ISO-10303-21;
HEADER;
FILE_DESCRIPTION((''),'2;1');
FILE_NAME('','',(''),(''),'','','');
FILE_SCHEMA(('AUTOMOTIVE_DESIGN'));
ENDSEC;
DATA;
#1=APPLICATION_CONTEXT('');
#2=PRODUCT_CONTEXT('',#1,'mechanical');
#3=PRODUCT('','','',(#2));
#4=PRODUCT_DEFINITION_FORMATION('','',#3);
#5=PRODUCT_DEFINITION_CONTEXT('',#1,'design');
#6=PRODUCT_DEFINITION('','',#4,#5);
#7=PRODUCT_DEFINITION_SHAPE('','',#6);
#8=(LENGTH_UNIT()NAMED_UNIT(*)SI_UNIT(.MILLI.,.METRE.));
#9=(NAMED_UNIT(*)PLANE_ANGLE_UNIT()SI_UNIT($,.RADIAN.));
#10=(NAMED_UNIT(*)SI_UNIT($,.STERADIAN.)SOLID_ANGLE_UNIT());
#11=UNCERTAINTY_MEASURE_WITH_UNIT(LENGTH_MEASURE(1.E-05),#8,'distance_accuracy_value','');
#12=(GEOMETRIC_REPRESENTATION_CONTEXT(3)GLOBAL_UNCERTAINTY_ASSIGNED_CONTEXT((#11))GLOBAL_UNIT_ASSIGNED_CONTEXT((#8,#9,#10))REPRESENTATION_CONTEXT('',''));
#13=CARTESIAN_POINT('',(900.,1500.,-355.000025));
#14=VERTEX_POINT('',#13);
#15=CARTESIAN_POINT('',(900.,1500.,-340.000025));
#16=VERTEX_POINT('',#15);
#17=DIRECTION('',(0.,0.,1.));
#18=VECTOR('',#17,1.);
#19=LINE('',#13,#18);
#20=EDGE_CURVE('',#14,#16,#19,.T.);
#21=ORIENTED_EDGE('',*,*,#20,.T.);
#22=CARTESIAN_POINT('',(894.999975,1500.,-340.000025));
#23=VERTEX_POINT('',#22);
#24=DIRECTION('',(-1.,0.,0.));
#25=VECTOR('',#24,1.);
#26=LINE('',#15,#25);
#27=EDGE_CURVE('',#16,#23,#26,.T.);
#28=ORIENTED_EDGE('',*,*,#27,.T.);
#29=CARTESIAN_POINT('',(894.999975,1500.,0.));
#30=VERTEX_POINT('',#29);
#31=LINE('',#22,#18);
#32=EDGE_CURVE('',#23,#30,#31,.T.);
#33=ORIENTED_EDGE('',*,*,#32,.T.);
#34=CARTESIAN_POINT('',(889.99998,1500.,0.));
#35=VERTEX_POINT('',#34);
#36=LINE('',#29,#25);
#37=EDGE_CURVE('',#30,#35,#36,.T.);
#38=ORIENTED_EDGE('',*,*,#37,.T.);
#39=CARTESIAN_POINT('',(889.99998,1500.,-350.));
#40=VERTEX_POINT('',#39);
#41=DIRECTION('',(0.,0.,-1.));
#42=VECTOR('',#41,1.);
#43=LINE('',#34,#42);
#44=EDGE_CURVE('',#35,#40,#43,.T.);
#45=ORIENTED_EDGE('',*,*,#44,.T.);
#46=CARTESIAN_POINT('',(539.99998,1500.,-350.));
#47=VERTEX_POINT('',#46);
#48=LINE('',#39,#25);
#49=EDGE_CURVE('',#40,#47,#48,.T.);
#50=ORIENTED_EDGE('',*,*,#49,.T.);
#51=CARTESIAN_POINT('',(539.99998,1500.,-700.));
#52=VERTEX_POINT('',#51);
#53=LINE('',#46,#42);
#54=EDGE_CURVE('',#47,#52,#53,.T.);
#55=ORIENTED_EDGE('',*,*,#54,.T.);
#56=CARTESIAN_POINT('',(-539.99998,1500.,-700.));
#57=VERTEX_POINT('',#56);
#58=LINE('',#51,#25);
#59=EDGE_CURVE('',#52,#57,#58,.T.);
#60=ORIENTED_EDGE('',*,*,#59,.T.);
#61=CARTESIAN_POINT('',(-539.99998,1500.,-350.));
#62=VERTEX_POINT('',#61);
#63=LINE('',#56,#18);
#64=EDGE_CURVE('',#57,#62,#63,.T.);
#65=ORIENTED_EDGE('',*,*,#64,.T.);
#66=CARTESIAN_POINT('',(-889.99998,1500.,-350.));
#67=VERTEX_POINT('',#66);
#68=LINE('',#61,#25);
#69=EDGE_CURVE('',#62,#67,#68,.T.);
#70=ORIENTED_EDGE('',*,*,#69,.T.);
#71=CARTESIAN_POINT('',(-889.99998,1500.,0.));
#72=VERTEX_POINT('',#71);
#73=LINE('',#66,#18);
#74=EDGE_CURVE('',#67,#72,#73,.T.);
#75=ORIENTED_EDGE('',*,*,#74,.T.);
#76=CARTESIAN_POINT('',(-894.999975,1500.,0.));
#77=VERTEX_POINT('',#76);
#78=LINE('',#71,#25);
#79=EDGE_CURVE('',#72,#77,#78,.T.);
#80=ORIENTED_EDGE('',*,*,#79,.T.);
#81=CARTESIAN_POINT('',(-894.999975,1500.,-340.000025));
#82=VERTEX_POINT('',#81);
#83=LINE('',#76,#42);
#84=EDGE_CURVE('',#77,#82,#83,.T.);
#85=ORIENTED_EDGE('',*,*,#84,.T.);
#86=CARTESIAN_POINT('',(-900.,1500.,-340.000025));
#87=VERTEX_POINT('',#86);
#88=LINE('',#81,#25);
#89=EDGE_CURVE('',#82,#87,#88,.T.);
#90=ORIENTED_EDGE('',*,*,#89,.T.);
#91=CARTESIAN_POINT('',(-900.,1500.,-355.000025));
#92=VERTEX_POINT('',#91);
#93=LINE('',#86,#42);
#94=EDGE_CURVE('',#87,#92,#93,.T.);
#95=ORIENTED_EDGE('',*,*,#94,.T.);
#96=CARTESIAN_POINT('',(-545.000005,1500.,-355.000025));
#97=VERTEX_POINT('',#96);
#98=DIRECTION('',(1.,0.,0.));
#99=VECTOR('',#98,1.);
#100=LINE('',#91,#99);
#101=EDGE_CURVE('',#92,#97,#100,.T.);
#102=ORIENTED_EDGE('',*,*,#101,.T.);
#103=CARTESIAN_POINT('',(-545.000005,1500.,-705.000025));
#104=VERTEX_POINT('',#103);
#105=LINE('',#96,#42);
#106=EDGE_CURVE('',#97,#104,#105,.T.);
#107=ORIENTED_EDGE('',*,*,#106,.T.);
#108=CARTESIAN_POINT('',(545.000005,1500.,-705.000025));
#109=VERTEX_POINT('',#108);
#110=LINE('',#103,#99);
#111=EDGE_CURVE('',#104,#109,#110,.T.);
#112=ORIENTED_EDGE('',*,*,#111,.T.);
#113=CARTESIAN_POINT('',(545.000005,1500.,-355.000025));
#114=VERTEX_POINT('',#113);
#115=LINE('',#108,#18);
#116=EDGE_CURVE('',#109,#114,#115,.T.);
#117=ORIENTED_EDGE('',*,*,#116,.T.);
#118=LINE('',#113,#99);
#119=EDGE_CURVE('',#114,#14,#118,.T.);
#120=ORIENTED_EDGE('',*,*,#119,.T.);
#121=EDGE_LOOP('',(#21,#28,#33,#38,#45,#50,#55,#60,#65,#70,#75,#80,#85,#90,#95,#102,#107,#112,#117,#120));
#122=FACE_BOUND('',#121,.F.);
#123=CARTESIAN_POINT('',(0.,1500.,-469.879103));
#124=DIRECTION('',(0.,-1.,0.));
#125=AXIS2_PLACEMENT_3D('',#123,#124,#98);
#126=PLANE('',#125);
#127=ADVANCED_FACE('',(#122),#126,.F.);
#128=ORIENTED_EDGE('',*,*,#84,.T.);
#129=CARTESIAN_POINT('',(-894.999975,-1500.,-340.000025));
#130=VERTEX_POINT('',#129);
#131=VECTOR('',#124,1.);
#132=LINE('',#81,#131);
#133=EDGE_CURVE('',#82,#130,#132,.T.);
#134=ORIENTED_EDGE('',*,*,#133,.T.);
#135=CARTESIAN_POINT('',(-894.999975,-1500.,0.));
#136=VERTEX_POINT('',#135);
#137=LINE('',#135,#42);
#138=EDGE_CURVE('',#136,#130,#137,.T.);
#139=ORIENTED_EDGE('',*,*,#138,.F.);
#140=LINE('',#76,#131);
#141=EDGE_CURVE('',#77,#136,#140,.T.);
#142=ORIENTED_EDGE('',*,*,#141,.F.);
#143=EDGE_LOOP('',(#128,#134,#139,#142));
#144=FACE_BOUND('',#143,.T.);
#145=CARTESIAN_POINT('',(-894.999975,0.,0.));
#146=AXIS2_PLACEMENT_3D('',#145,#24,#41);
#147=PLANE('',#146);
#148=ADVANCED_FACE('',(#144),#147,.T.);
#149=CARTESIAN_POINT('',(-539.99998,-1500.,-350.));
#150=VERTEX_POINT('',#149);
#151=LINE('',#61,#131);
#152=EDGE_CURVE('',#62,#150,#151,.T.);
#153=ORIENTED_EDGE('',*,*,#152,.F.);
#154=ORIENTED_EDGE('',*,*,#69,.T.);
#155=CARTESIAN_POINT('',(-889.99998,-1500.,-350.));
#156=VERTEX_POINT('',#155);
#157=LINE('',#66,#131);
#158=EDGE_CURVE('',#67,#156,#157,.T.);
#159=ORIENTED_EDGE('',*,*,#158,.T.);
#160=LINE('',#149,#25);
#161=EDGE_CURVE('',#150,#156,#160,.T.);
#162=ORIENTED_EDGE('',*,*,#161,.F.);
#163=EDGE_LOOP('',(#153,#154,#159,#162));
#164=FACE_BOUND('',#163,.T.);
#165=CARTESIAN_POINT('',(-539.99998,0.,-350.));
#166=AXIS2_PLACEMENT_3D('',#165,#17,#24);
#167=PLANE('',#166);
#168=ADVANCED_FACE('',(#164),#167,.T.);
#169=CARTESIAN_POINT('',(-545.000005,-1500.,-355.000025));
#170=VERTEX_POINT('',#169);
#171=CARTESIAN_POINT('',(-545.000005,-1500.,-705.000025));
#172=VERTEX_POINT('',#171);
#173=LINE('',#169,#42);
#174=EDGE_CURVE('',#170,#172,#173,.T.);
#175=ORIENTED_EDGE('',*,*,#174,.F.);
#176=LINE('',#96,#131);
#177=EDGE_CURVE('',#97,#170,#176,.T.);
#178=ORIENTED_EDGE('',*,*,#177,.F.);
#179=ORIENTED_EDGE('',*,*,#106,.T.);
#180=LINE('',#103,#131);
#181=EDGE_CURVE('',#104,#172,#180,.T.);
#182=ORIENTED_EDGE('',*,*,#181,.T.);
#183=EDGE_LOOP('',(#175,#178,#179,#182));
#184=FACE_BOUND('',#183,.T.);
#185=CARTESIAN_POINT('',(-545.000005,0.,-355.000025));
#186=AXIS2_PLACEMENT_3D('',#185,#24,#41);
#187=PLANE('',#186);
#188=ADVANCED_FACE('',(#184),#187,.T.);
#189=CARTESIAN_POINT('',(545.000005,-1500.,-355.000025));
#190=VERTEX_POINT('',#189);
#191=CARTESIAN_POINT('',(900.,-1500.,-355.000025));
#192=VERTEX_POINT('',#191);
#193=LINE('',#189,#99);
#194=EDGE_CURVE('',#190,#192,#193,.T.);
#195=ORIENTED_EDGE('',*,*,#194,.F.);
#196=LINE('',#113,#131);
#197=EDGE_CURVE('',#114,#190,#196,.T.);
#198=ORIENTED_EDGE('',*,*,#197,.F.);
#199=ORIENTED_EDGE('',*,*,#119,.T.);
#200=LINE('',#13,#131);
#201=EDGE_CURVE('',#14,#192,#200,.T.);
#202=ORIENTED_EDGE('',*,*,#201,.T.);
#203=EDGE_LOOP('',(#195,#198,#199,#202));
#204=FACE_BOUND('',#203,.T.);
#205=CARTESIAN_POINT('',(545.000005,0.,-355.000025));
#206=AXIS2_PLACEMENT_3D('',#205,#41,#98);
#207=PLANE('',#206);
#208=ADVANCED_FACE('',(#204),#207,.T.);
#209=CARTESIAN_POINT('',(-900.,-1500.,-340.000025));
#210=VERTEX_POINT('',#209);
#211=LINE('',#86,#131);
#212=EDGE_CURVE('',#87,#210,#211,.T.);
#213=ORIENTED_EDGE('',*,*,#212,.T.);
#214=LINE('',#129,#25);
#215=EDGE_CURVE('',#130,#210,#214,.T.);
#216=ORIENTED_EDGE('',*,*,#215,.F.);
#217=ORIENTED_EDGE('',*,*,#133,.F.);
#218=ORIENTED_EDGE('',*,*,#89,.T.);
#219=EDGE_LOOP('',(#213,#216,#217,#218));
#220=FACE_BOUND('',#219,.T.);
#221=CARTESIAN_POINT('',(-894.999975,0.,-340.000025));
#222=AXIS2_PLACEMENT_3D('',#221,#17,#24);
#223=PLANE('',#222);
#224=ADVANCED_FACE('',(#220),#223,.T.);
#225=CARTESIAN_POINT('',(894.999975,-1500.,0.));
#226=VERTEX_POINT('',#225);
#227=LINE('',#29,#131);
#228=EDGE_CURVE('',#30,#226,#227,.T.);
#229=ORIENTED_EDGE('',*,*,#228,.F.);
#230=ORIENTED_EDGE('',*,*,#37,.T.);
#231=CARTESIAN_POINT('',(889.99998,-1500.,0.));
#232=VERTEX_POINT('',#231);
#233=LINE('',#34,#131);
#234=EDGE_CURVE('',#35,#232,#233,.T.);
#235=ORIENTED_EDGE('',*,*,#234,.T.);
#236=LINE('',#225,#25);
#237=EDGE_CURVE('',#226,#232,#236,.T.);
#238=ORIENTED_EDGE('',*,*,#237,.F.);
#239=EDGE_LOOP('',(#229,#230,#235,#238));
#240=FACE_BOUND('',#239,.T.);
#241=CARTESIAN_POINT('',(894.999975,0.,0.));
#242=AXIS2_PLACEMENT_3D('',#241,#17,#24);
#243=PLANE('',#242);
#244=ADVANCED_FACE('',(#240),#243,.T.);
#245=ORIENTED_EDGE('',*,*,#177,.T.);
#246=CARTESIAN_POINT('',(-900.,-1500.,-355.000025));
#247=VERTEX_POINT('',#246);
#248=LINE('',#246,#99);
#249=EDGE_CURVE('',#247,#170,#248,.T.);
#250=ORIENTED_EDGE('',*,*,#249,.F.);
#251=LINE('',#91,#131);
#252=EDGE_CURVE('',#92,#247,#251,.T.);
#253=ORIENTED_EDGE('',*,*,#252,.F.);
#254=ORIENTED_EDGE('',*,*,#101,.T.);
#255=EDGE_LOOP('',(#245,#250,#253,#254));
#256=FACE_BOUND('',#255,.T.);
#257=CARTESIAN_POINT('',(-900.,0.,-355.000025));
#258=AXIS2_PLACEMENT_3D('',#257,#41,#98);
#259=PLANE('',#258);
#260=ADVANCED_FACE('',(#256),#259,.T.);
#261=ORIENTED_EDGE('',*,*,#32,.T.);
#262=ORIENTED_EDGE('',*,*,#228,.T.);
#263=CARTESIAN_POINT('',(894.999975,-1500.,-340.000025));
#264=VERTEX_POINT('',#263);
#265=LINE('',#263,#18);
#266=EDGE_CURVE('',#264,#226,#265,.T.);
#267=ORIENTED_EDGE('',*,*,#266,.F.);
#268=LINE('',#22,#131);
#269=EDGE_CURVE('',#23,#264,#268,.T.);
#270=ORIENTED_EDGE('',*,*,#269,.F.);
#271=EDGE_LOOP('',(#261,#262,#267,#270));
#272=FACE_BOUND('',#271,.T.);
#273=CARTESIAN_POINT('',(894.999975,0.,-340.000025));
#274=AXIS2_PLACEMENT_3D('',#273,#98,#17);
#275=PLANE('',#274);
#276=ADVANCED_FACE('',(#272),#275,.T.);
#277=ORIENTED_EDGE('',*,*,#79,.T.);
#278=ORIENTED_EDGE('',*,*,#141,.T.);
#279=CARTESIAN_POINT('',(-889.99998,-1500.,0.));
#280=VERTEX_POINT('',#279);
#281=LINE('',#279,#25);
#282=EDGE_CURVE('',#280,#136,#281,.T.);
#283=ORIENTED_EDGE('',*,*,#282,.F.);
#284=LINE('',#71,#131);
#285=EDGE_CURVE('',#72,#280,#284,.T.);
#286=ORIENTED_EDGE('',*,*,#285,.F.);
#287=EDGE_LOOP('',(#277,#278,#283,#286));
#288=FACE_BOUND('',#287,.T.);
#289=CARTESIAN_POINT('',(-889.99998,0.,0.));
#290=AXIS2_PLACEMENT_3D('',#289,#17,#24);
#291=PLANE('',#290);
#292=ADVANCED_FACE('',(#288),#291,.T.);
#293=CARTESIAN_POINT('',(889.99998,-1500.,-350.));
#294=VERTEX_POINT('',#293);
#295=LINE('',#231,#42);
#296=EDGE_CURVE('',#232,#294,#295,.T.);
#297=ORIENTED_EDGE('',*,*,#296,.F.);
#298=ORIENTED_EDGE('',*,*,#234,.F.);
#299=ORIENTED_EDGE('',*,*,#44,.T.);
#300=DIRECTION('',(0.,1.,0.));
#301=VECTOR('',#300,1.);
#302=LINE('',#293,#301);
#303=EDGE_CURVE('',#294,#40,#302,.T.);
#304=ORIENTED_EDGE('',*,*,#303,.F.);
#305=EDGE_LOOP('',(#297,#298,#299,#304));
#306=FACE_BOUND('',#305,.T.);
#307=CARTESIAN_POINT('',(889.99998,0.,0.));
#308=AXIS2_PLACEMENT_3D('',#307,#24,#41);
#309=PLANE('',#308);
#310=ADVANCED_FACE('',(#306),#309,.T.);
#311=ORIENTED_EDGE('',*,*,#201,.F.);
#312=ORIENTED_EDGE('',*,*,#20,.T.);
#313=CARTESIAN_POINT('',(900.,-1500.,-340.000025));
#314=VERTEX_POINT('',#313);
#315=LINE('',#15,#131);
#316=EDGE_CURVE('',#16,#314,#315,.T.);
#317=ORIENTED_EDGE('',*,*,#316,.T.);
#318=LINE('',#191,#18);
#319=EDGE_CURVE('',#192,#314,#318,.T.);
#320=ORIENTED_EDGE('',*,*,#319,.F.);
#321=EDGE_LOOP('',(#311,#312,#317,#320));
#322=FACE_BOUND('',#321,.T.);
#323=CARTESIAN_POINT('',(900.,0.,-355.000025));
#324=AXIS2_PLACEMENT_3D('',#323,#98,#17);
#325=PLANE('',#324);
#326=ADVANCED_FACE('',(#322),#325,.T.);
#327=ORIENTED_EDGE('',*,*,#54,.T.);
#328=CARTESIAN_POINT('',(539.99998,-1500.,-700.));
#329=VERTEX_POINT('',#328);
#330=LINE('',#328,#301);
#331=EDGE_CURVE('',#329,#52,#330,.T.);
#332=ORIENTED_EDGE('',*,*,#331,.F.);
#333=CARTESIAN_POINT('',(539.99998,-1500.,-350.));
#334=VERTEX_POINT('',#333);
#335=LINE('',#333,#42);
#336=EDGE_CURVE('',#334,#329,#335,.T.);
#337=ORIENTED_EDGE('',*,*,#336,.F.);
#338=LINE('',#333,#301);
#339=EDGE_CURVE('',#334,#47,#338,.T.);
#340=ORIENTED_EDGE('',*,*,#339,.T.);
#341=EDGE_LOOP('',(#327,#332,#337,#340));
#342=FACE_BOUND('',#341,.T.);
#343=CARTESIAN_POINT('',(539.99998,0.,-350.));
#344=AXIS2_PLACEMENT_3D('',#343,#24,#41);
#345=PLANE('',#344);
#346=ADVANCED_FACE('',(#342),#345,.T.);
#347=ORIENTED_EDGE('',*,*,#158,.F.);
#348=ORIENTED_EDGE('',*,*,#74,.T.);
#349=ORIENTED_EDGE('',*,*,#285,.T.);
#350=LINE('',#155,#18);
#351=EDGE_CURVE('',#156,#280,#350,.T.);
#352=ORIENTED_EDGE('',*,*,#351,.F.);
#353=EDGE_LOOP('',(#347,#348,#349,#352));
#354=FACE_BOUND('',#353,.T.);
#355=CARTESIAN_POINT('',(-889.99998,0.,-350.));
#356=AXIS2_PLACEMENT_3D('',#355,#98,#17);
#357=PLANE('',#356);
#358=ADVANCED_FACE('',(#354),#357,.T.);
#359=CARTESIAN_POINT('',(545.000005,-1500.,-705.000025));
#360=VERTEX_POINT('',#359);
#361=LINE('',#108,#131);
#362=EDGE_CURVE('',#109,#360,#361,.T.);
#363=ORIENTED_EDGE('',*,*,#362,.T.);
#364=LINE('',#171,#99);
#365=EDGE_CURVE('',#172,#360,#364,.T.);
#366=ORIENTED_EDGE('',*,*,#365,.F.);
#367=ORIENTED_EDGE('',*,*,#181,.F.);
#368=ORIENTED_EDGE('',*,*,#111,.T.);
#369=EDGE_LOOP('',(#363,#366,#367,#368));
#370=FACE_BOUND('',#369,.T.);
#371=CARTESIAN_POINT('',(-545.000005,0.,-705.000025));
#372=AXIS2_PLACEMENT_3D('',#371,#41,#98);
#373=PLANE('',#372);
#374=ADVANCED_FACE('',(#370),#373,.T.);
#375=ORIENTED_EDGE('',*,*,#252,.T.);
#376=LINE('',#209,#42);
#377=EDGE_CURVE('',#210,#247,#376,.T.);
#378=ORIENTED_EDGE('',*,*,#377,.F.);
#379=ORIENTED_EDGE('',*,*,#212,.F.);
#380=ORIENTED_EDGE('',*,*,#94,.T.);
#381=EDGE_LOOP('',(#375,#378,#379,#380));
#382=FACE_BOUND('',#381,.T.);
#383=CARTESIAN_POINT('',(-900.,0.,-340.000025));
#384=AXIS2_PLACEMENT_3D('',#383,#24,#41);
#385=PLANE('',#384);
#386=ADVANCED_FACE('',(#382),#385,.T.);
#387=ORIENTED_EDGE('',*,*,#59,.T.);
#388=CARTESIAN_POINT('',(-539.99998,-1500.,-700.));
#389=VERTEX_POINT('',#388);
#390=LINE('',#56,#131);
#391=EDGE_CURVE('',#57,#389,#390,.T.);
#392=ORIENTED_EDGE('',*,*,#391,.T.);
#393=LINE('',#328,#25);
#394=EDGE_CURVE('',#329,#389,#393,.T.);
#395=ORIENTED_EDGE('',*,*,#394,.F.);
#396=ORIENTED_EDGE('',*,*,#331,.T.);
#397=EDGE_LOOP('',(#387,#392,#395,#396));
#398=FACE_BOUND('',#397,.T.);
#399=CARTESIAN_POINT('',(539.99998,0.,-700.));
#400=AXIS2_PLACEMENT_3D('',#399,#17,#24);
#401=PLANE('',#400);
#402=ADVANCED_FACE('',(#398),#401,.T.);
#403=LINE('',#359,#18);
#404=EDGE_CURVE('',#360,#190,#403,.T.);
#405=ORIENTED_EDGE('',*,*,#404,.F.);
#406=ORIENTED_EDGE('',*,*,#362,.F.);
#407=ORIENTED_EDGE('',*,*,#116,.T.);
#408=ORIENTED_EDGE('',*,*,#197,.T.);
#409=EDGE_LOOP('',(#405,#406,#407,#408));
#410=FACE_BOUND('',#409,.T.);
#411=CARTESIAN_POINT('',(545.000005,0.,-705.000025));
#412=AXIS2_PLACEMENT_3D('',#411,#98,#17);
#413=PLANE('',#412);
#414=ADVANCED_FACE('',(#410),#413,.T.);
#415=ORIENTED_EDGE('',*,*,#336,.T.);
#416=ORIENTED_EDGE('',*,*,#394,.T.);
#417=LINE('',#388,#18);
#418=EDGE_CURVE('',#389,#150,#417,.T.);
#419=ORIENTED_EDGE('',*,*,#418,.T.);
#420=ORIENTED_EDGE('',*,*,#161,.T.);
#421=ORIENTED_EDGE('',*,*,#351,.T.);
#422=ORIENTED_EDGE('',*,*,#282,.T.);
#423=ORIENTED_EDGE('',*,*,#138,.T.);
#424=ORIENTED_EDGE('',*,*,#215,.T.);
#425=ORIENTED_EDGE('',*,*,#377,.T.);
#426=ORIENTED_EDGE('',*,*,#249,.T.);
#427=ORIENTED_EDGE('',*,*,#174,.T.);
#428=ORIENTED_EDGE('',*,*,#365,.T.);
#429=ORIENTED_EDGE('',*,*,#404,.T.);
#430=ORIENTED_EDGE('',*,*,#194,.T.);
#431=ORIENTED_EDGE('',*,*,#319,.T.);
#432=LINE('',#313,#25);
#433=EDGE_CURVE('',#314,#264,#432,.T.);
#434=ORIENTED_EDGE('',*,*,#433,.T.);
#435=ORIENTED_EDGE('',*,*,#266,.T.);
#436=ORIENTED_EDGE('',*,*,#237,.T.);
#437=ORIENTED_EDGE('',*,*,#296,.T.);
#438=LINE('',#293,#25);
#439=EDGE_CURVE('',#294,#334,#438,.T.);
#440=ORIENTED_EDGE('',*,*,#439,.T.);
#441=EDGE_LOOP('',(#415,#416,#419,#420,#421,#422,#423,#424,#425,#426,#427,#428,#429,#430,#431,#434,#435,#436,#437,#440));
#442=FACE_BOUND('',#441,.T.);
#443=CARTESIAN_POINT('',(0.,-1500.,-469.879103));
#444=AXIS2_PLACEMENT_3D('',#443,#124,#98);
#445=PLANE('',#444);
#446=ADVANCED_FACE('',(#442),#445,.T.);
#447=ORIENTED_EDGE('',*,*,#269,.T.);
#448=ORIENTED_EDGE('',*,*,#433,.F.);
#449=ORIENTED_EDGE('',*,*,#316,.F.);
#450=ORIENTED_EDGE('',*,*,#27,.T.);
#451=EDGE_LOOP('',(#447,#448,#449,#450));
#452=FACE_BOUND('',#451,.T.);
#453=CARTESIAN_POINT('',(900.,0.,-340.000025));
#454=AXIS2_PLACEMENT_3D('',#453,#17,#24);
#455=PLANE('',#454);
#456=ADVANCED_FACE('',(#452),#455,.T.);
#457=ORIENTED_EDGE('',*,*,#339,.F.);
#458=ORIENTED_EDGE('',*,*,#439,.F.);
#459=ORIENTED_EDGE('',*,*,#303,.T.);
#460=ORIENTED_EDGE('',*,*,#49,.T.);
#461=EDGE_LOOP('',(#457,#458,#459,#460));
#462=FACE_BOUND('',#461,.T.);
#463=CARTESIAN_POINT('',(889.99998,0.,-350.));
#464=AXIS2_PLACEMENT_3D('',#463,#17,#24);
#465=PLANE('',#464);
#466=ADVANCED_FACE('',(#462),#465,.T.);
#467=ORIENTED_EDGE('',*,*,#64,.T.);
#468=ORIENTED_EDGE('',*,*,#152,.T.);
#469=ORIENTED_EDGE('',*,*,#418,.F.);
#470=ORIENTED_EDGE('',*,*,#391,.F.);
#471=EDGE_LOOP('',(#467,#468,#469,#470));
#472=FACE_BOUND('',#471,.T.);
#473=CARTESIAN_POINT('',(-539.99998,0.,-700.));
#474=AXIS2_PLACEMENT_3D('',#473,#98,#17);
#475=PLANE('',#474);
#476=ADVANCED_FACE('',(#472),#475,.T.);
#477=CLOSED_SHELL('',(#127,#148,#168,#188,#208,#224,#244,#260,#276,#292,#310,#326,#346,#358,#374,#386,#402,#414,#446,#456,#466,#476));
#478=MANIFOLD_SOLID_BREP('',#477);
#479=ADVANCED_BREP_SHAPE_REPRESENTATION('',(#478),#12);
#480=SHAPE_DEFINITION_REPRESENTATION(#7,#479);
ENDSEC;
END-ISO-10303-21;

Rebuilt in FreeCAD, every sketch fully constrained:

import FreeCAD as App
import Part
import Sketcher
Q = App.Units.Quantity

doc = App.newDocument("Part")
body = doc.addObject("PartDesign::Body", "Body")

sketch1 = body.newObject("Sketcher::SketchObject", "Sketch")
sketch1.AttachmentSupport = (doc.getObject("XZ_Plane"), [""])
sketch1.MapMode = "FlatFace"
sketch1.addGeometry([
    Part.LineSegment(App.Vector(540, -700, 0), App.Vector(-540, -700, 0)),
    Part.LineSegment(App.Vector(-540, -700, 0), App.Vector(-540, -350, 0)),
    Part.LineSegment(App.Vector(-540, -350, 0), App.Vector(-890, -350, 0)),
    Part.LineSegment(App.Vector(-890, -350, 0), App.Vector(-890, 0, 0)),
    Part.LineSegment(App.Vector(-890, 0, 0), App.Vector(-895, 0, 0)),
    Part.LineSegment(App.Vector(-895, 0, 0), App.Vector(-895, -340, 0)),
    Part.LineSegment(App.Vector(-895, -340, 0), App.Vector(-900, -340, 0)),
    Part.LineSegment(App.Vector(-900, -340, 0), App.Vector(-900, -355, 0)),
    Part.LineSegment(App.Vector(-900, -355, 0), App.Vector(-545, -355, 0)),
    Part.LineSegment(App.Vector(-545, -355, 0), App.Vector(-545, -705, 0)),
    Part.LineSegment(App.Vector(-545, -705, 0), App.Vector(545, -705, 0)),
    Part.LineSegment(App.Vector(545, -705, 0), App.Vector(545, -355, 0)),
    Part.LineSegment(App.Vector(545, -355, 0), App.Vector(900, -355, 0)),
    Part.LineSegment(App.Vector(900, -355, 0), App.Vector(900, -340, 0)),
    Part.LineSegment(App.Vector(900, -340, 0), App.Vector(895, -340, 0)),
    Part.LineSegment(App.Vector(895, -340, 0), App.Vector(895, 0, 0)),
    Part.LineSegment(App.Vector(895, 0, 0), App.Vector(890, 0, 0)),
    Part.LineSegment(App.Vector(890, 0, 0), App.Vector(890, -350, 0)),
    Part.LineSegment(App.Vector(890, -350, 0), App.Vector(540, -350, 0)),
    Part.LineSegment(App.Vector(540, -350, 0), App.Vector(540, -700, 0)),
], False)
sketch1.addConstraint([
    Sketcher.Constraint("Coincident", 0, 2, 1, 1),
    Sketcher.Constraint("Coincident", 1, 2, 2, 1),
    Sketcher.Constraint("Coincident", 2, 2, 3, 1),
    Sketcher.Constraint("Coincident", 3, 2, 4, 1),
    Sketcher.Constraint("Coincident", 4, 2, 5, 1),
    Sketcher.Constraint("Coincident", 5, 2, 6, 1),
    Sketcher.Constraint("Coincident", 6, 2, 7, 1),
    Sketcher.Constraint("Coincident", 7, 2, 8, 1),
    Sketcher.Constraint("Coincident", 8, 2, 9, 1),
    Sketcher.Constraint("Coincident", 9, 2, 10, 1),
    Sketcher.Constraint("Coincident", 10, 2, 11, 1),
    Sketcher.Constraint("Coincident", 11, 2, 12, 1),
    Sketcher.Constraint("Coincident", 12, 2, 13, 1),
    Sketcher.Constraint("Coincident", 13, 2, 14, 1),
    Sketcher.Constraint("Coincident", 14, 2, 15, 1),
    Sketcher.Constraint("Coincident", 15, 2, 16, 1),
    Sketcher.Constraint("Coincident", 16, 2, 17, 1),
    Sketcher.Constraint("Coincident", 17, 2, 18, 1),
    Sketcher.Constraint("Coincident", 18, 2, 19, 1),
    Sketcher.Constraint("Coincident", 19, 2, 0, 1),
    Sketcher.Constraint("Horizontal", 0),
    Sketcher.Constraint("Vertical", 1),
    Sketcher.Constraint("Horizontal", 2),
    Sketcher.Constraint("Vertical", 3),
    Sketcher.Constraint("Horizontal", 4),
    Sketcher.Constraint("Vertical", 5),
    Sketcher.Constraint("Horizontal", 6),
    Sketcher.Constraint("Vertical", 7),
    Sketcher.Constraint("Horizontal", 8),
    Sketcher.Constraint("Vertical", 9),
    Sketcher.Constraint("Horizontal", 10),
    Sketcher.Constraint("Vertical", 11),
    Sketcher.Constraint("Horizontal", 12),
    Sketcher.Constraint("Vertical", 13),
    Sketcher.Constraint("Horizontal", 14),
    Sketcher.Constraint("Vertical", 15),
    Sketcher.Constraint("Horizontal", 16),
    Sketcher.Constraint("Vertical", 17),
    Sketcher.Constraint("Horizontal", 18),
    Sketcher.Constraint("Vertical", 19),
    Sketcher.Constraint("Symmetric", 4, 2, 15, 2, -1, 1),
    Sketcher.Constraint("Symmetric", 8, 2, 11, 2, -2),
    Sketcher.Constraint("Symmetric", 6, 2, 13, 2, -2),
    Sketcher.Constraint("Symmetric", 3, 2, 16, 2, -2),
    Sketcher.Constraint("Symmetric", 1, 2, 18, 2, -2),
    Sketcher.Constraint("Equal", 18, 1),
    Sketcher.Constraint("Equal", 1, 3),
    Sketcher.Constraint("Equal", 3, 9),
    Sketcher.Constraint("DistanceX", 2, 2, 2, 1, Q("350 mm")),
    Sketcher.Constraint("DistanceY", 7, 2, 7, 1, Q("15 mm")),
    Sketcher.Constraint("DistanceX", 6, 2, -1, 1, Q("900 mm")),
    Sketcher.Constraint("DistanceX", 0, 2, 0, 1, Q("1079.99996 mm")),
    Sketcher.Constraint("DistanceX", 10, 1, 10, 2, Q("1090.00001 mm")),
    Sketcher.Constraint("DistanceX", 4, 2, 4, 1, Q("4.999995 mm")),
    Sketcher.Constraint("DistanceY", 5, 2, 5, 1, Q("340.000025 mm")),
])
pad1 = body.newObject("PartDesign::Pad", "Pad")
pad1.Profile = sketch1
pad1.Type = "TwoLengths"
pad1.Length = 1500
pad1.Length2 = 1500

doc.recompute()
